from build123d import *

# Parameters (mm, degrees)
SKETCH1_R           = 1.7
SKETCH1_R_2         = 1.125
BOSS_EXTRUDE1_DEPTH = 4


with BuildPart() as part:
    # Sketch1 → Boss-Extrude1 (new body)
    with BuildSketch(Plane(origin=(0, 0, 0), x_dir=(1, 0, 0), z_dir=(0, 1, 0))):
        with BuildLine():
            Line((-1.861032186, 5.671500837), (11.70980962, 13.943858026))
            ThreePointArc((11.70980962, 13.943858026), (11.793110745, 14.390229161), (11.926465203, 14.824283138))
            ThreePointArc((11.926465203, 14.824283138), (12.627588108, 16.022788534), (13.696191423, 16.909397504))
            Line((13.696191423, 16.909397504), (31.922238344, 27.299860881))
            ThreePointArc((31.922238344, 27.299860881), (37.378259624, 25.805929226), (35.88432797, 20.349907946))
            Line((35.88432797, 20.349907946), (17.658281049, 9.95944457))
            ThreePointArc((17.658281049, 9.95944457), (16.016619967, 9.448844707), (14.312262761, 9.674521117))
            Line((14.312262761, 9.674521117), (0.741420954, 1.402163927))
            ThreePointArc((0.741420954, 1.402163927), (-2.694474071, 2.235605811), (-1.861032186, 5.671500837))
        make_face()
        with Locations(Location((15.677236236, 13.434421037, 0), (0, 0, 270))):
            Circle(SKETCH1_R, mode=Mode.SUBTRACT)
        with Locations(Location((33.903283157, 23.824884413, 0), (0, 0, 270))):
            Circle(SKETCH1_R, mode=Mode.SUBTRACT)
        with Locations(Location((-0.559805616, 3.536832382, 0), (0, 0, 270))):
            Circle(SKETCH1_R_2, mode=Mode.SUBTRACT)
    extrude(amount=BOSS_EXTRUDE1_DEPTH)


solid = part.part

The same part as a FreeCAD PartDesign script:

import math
import FreeCAD as App
import Part
import Sketcher
from FreeCAD import Vector
Q = App.Units.Quantity

doc = App.newDocument("Part")
body = doc.addObject("PartDesign::Body", "Body")

sketch1 = body.newObject("Sketcher::SketchObject", "Sketch")
sketch1.AttachmentSupport = (doc.getObject("XZ_Plane"), [""])
sketch1.MapMode = "FlatFace"
sketch1.addGeometry(Part.LineSegment(Vector(11.70981, -13.943858, 0), Vector(-1.861032, -5.671501, 0)), False)
sketch1.addGeometry(Part.ArcOfCircle(Part.Circle(Vector(-0.559806, -3.536832, 0), Vector(0, 0, 1), 2.5), math.radians(58.634832), math.radians(238.634832)), False)
sketch1.addGeometry(Part.LineSegment(Vector(0.741421, -1.402164, 0), Vector(14.312263, -9.674521, 0)), False)
sketch1.addGeometry(Part.ArcOfCircle(Part.Circle(Vector(15.677236, -13.434421, 0), Vector(0, 0, 1), 4), math.radians(60.313024), math.radians(109.952645)), False)
sketch1.addGeometry(Part.LineSegment(Vector(17.658281, -9.959445, 0), Vector(35.884328, -20.349908, 0)), False)
sketch1.addGeometry(Part.ArcOfCircle(Part.Circle(Vector(33.903283, -23.824884, 0), Vector(0, 0, 1), 4), math.radians(-119.686976), math.radians(60.313024)), False)
sketch1.addGeometry(Part.LineSegment(Vector(31.922238, -27.299861, 0), Vector(13.696191, -16.909398, 0)), False)
sketch1.addGeometry(Part.ArcOfCircle(Part.Circle(Vector(15.677236, -13.434421, 0), Vector(0, 0, 1), 4), math.radians(-159.667627), math.radians(-119.686976)), False)
sketch1.addGeometry(Part.ArcOfCircle(Part.Circle(Vector(15.677236, -13.434421, 0), Vector(0, 0, 1), 4), math.radians(-172.68298), math.radians(-159.667627)), False)
sketch1.addGeometry(Part.Circle(Vector(-0.559806, -3.536832, 0), Vector(0, 0, 1), 1.125), False)
sketch1.addGeometry(Part.Circle(Vector(15.677236, -13.434421, 0), Vector(0, 0, 1), 1.7), False)
sketch1.addGeometry(Part.Circle(Vector(33.903283, -23.824884, 0), Vector(0, 0, 1), 1.7), False)
sketch1.addConstraint(Sketcher.Constraint("Coincident", 0, 2, 1, 2))
sketch1.addConstraint(Sketcher.Constraint("Coincident", 1, 1, 2, 1))
sketch1.addConstraint(Sketcher.Constraint("Coincident", 2, 2, 3, 2))
sketch1.addConstraint(Sketcher.Constraint("Coincident", 3, 1, 4, 1))
sketch1.addConstraint(Sketcher.Constraint("Coincident", 4, 2, 5, 2))
sketch1.addConstraint(Sketcher.Constraint("Coincident", 5, 1, 6, 1))
sketch1.addConstraint(Sketcher.Constraint("Coincident", 6, 2, 7, 2))
sketch1.addConstraint(Sketcher.Constraint("Coincident", 7, 1, 8, 2))
sketch1.addConstraint(Sketcher.Constraint("Coincident", 8, 1, 0, 1))
sketch1.addConstraint(Sketcher.Constraint("Coincident", 7, 3, 3, 3))
sketch1.addConstraint(Sketcher.Constraint("Coincident", 8, 3, 3, 3))
sketch1.addConstraint(Sketcher.Constraint("Coincident", 9, 3, 1, 3))
sketch1.addConstraint(Sketcher.Constraint("Coincident", 10, 3, 3, 3))
sketch1.addConstraint(Sketcher.Constraint("Coincident", 11, 3, 5, 3))
sketch1.addConstraint(Sketcher.Constraint("Radius", 3, Q("4 mm")))
sketch1.addConstraint(Sketcher.Constraint("Radius", 5, Q("4 mm")))
sketch1.addConstraint(Sketcher.Constraint("Radius", 7, Q("4 mm")))
sketch1.addConstraint(Sketcher.Constraint("Diameter", 10, Q("3.4 mm")))
sketch1.addConstraint(Sketcher.Constraint("Diameter", 11, Q("3.4 mm")))
sketch1.addConstraint(Sketcher.Constraint("Radius", 1, Q("2.5 mm")))
sketch1.addConstraint(Sketcher.Constraint("Diameter", 9, Q("2.25 mm")))
sketch1.addConstraint(Sketcher.Constraint("DistanceY", 0, 2, -1, 1, Q("5.671501 mm")))
sketch1.addConstraint(Sketcher.Constraint("DistanceY", 3, 3, 2, 2, Q("3.7599 mm")))
sketch1.addConstraint(Sketcher.Constraint("DistanceY", 3, 3, -1, 1, Q("13.434421 mm")))
sketch1.addConstraint(Sketcher.Constraint("DistanceX", -1, 1, 1, 1, Q("0.741421 mm")))
sketch1.addConstraint(Sketcher.Constraint("DistanceX", -1, 1, 3, 1, Q("17.658281 mm")))
sketch1.addConstraint(Sketcher.Constraint("DistanceX", -1, 1, 5, 1, Q("31.922238 mm")))
sketch1.addConstraint(Sketcher.Constraint("DistanceY", 5, 1, -1, 1, Q("27.299861 mm")))
sketch1.addConstraint(Sketcher.Constraint("DistanceX", -1, 1, 6, 2, Q("13.696191 mm")))
sketch1.addConstraint(Sketcher.Constraint("DistanceX", -1, 1, 8, 1, Q("11.70981 mm")))
sketch1.addConstraint(Sketcher.Constraint("DistanceY", 8, 1, -1, 1, Q("13.943858 mm")))
sketch1.addConstraint(Sketcher.Constraint("DistanceX", 1, 3, 3, 3, Q("16.237042 mm")))
sketch1.addConstraint(Sketcher.Constraint("DistanceY", 3, 3, 1, 3, Q("9.897589 mm")))
sketch1.addConstraint(Sketcher.Constraint("DistanceX", 1, 3, 5, 3, Q("34.463089 mm")))
sketch1.addConstraint(Sketcher.Constraint("DistanceX", 8, 3, 4, 2, Q("20.207092 mm")))
sketch1.addConstraint(Sketcher.Constraint("DistanceX", 7, 1, 7, 3, Q("3.750771 mm")))
pad1 = body.newObject("PartDesign::Pad", "Pad")
pad1.Profile = sketch1
pad1.Length = 4
pad1.Reversed = True

doc.recompute()
